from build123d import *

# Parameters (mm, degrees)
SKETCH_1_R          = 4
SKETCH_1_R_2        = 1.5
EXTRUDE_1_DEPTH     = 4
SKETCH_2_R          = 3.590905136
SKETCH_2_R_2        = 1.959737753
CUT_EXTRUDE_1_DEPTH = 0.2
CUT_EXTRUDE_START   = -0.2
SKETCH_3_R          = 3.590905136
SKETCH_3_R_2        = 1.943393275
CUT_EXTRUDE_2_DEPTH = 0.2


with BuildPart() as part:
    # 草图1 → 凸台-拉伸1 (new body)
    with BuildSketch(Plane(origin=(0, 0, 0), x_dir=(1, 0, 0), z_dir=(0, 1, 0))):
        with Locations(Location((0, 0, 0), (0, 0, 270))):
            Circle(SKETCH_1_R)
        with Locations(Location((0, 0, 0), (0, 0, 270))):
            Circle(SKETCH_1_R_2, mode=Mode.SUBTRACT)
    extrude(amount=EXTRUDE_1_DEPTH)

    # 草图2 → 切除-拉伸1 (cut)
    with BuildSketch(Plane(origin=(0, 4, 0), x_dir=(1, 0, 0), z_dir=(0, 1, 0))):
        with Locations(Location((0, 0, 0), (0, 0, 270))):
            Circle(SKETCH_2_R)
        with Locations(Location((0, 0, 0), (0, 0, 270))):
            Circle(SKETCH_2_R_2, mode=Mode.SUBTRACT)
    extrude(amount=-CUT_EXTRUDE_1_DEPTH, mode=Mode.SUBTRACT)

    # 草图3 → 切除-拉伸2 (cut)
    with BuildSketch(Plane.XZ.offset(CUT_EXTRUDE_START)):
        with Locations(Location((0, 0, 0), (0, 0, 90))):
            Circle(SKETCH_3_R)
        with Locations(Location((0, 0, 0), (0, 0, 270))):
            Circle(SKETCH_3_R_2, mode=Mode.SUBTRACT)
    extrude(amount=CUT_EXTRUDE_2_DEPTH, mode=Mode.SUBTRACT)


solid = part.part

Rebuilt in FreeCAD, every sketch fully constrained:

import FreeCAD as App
import Part
import Sketcher
Q = App.Units.Quantity

doc = App.newDocument("Part")
body = doc.addObject("PartDesign::Body", "Body")

sketch1 = doc.addObject("Sketcher::SketchObject", "Sketch")
body.addObject(sketch1)
sketch1.AttachmentSupport = (doc.XZ_Plane, [""])
sketch1.MapMode = "FlatFace"
sketch1.addGeometry(Part.Circle(App.Vector(0, 0, 0), App.Vector(0, 0, 1), 4), False)
sketch1.addGeometry(Part.Circle(App.Vector(0, 0, 0), App.Vector(0, 0, 1), 1.5), False)
sketch1.addConstraint(Sketcher.Constraint("Coincident", 0, 3, -1, 1))
sketch1.addConstraint(Sketcher.Constraint("Coincident", 1, 3, -1, 1))
sketch1.addConstraint(Sketcher.Constraint("Diameter", 0, Q("8 mm")))
sketch1.addConstraint(Sketcher.Constraint("Diameter", 1, Q("3 mm")))
pad1 = doc.addObject("PartDesign::Pad", "Pad")
body.addObject(pad1)
pad1.Profile = sketch1
pad1.Length = 4
pad1.Reversed = True

sketch2 = doc.addObject("Sketcher::SketchObject", "Sketch001")
body.addObject(sketch2)
sketch2.AttachmentSupport = (doc.XZ_Plane, [""])
sketch2.MapMode = "FlatFace"
sketch2.AttachmentOffset = App.Placement(App.Vector(0, 0, -4), App.Rotation())
sketch2.addGeometry(Part.Circle(App.Vector(0, 0, 0), App.Vector(0, 0, 1), 3.590905), False)
sketch2.addGeometry(Part.Circle(App.Vector(0, 0, 0), App.Vector(0, 0, 1), 1.959738), False)
sketch2.addConstraint(Sketcher.Constraint("Coincident", 0, 3, -1, 1))
sketch2.addConstraint(Sketcher.Constraint("Coincident", 1, 3, -1, 1))
sketch2.addConstraint(Sketcher.Constraint("Diameter", 0, Q("7.18181 mm")))
sketch2.addConstraint(Sketcher.Constraint("Diameter", 1, Q("3.919476 mm")))
pocket1 = doc.addObject("PartDesign::Pocket", "Pocket")
body.addObject(pocket1)
pocket1.Profile = sketch2
pocket1.Length = 0.2
pocket1.Reversed = True

sketch3 = doc.addObject("Sketcher::SketchObject", "Sketch002")
body.addObject(sketch3)
sketch3.AttachmentSupport = (doc.XZ_Plane, [""])
sketch3.MapMode = "FlatFace"
sketch3.AttachmentOffset = App.Placement(App.Vector(0, 0, -0.2), App.Rotation())
sketch3.addGeometry(Part.Circle(App.Vector(0, 0, 0), App.Vector(0, 0, 1), 3.590905), False)
sketch3.addGeometry(Part.Circle(App.Vector(0, 0, 0), App.Vector(0, 0, 1), 1.943393), False)
sketch3.addConstraint(Sketcher.Constraint("Coincident", 0, 3, -1, 1))
sketch3.addConstraint(Sketcher.Constraint("Coincident", 1, 3, -1, 1))
sketch3.addConstraint(Sketcher.Constraint("Diameter", 0, Q("7.18181 mm")))
sketch3.addConstraint(Sketcher.Constraint("Diameter", 1, Q("3.886787 mm")))
pocket2 = doc.addObject("PartDesign::Pocket", "Pocket001")
body.addObject(pocket2)
pocket2.Profile = sketch3
pocket2.Length = 0.2
pocket2.Reversed = True

doc.recompute()
